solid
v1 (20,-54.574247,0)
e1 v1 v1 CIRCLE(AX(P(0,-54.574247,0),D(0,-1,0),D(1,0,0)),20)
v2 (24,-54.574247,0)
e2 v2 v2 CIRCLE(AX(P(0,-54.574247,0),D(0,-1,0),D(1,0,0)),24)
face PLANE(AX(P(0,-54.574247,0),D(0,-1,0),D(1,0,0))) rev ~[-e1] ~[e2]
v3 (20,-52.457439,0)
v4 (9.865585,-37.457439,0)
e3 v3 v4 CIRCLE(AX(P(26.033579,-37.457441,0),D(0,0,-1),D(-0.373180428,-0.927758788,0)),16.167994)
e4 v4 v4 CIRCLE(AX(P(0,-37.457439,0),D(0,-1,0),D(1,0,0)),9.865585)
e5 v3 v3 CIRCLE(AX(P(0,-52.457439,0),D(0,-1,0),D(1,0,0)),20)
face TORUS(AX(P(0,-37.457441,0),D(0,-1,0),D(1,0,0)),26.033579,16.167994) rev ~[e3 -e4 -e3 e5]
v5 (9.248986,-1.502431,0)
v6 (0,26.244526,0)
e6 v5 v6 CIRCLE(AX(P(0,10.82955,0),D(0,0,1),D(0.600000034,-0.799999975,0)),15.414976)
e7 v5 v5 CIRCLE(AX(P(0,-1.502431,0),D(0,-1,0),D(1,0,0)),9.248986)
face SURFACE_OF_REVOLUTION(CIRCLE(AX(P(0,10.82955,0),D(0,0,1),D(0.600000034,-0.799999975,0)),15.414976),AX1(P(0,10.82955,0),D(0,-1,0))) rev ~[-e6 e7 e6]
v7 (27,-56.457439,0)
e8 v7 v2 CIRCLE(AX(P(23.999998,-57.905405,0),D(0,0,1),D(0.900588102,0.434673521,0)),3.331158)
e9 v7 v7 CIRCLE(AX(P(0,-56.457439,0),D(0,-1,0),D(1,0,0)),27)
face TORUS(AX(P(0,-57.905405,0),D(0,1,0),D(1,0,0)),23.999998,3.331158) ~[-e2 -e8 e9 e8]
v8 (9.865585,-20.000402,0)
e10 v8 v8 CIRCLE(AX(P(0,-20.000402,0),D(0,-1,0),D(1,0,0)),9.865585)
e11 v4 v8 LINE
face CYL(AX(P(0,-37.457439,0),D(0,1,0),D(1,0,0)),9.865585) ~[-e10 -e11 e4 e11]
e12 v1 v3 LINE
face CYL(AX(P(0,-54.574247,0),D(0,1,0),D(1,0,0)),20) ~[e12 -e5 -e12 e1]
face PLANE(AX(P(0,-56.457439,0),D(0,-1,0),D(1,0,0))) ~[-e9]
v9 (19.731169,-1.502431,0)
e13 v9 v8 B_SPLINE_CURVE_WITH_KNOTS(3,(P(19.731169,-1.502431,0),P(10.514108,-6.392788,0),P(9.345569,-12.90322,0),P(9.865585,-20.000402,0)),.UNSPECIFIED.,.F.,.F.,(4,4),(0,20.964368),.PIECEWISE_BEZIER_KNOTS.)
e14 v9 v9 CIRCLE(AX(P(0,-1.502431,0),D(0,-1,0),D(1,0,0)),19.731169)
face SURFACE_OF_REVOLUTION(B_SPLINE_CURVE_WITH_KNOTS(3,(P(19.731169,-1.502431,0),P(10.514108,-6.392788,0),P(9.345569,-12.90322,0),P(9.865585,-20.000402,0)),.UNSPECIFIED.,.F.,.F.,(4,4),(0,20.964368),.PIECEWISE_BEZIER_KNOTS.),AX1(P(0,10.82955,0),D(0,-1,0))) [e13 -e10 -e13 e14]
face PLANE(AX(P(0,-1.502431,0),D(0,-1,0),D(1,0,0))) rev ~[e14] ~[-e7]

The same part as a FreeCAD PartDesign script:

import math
import FreeCAD as App
import Part
import Sketcher

V = App.Vector
Q = App.Units.Quantity

doc = App.newDocument("Part")
params = doc.addObject("Spreadsheet::Sheet", "Params")
for row, (alias, value) in enumerate([
    ("sketch1_width", "27 mm"),
    ("sketch1_width2", "4 mm"),
    ("revolution_angle", "360 deg"),
], start=1):
    params.set(f"A{row}", alias)
    params.set(f"B{row}", "=" + value)
    params.setAlias(f"B{row}", alias)

body = doc.addObject("PartDesign::Body", "Body")

sketch1 = doc.addObject("Sketcher::SketchObject", "Sketch")
body.addObject(sketch1)
sketch1.AttachmentSupport = (doc.XY_Plane, [""])
sketch1.MapMode = "FlatFace"
sketch1.addGeometry(Part.LineSegment(V(19.731169, -1.502431, 0), V(9.248986, -1.502431, 0)), False)
sketch1.addGeometry(Part.ArcOfCircle(Part.Circle(V(0, 10.82955, 0), V(0, 0, 1), 15.414976), math.radians(-53.1301), math.radians(89.999999)), False)
sketch1.addGeometry(Part.LineSegment(V(0, 26.244526, 0), V(0, -56.457439, 0)), False)
sketch1.addGeometry(Part.LineSegment(V(0, -56.457439, 0), V(27, -56.457439, 0)), False)
sketch1.addGeometry(Part.ArcOfCircle(Part.Circle(V(23.999998, -57.905405, 0), V(0, 0, 1), 3.331158), math.radians(25.764521), math.radians(89.999973)), False)
sketch1.addGeometry(Part.LineSegment(V(24, -54.574247, 0), V(20, -54.574247, 0)), False)
sketch1.addGeometry(Part.LineSegment(V(20, -54.574247, 0), V(20, -52.457439, 0)), False)
sketch1.addGeometry(Part.ArcOfCircle(Part.Circle(V(26.033579, -37.457441, 0), V(0, 0, 1), 16.167994), math.radians(179.999994), math.radians(248.088103)), False)
sketch1.addGeometry(Part.LineSegment(V(9.865585, -37.457439, 0), V(9.865585, -20.000402, 0)), False)
sketch1.addGeometry(Part.BSplineCurve([V(19.731169, -1.502431, 0), V(10.514108, -6.392788, 0), V(9.345569, -12.90322, 0), V(9.865585, -20.000402, 0)], [4, 4], [0, 20.964368], False, 3, [1, 1, 1, 1], False), False)
sketch1.addConstraint(Sketcher.Constraint("Block", 9))
sketch1.addConstraint(Sketcher.Constraint("Coincident", 0, 2, 1, 1))
sketch1.addConstraint(Sketcher.Constraint("Coincident", 1, 2, 2, 1))
sketch1.addConstraint(Sketcher.Constraint("Coincident", 2, 2, 3, 1))
sketch1.addConstraint(Sketcher.Constraint("Coincident", 3, 2, 4, 1))
sketch1.addConstraint(Sketcher.Constraint("Tangent", 4, 2, 5, 1))
sketch1.addConstraint(Sketcher.Constraint("Coincident", 5, 2, 6, 1))
sketch1.addConstraint(Sketcher.Constraint("Coincident", 6, 2, 7, 2))
sketch1.addConstraint(Sketcher.Constraint("Tangent", 7, 1, 8, 1))
sketch1.addConstraint(Sketcher.Constraint("Coincident", 8, 2, 9, 2))
sketch1.addConstraint(Sketcher.Constraint("Coincident", 9, 1, 0, 1))
sketch1.addConstraint(Sketcher.Constraint("Horizontal", 0))
sketch1.addConstraint(Sketcher.Constraint("Vertical", 2))
sketch1.addConstraint(Sketcher.Constraint("Horizontal", 3))
sketch1.addConstraint(Sketcher.Constraint("Horizontal", 5))
sketch1.addConstraint(Sketcher.Constraint("Vertical", 6))
sketch1.addConstraint(Sketcher.Constraint("Vertical", 8))
sketch1.addConstraint(Sketcher.Constraint("PointOnObject", 1, 3, -2))
sketch1.addConstraint(Sketcher.Constraint("PointOnObject", 1, 2, -2))
sketch1.addConstraint(Sketcher.Constraint("DistanceX", 3, 1, 3, 2, Q("27 mm")))
sketch1.addConstraint(Sketcher.Constraint("DistanceX", 5, 2, 5, 1, Q("4 mm")))
sketch1.addConstraint(Sketcher.Constraint("DistanceX", -1, 1, 4, 3, Q("23.999998 mm")))
sketch1.addConstraint(Sketcher.Constraint("DistanceY", 2, 2, 7, 3, Q("18.999998 mm")))
sketch1.addConstraint(Sketcher.Constraint("DistanceY", 3, 2, 6, 2, Q("4 mm")))
sketch1.addConstraint(Sketcher.Constraint("Radius", 4, Q("3.331158 mm")))
sketch1.addConstraint(Sketcher.Constraint("Radius", 1, Q("15.414976 mm")))
sketch1.addConstraint(Sketcher.Constraint("DistanceX", 0, 2, 8, 2, Q("0.616599 mm")))
sketch1.addConstraint(Sketcher.Constraint("DistanceY", 2, 2, 2, 1, Q("82.701965 mm")))
sketch1.setExpression("Constraints[19]", "Params.sketch1_width")
sketch1.setExpression("Constraints[20]", "Params.sketch1_width2")
revolution = doc.addObject("PartDesign::Revolution", "Revolution")
body.addObject(revolution)
revolution.Profile = sketch1
revolution.ReferenceAxis = (sketch1, ["V_Axis"])
revolution.setExpression("Angle", "Params.revolution_angle")

doc.recompute()
